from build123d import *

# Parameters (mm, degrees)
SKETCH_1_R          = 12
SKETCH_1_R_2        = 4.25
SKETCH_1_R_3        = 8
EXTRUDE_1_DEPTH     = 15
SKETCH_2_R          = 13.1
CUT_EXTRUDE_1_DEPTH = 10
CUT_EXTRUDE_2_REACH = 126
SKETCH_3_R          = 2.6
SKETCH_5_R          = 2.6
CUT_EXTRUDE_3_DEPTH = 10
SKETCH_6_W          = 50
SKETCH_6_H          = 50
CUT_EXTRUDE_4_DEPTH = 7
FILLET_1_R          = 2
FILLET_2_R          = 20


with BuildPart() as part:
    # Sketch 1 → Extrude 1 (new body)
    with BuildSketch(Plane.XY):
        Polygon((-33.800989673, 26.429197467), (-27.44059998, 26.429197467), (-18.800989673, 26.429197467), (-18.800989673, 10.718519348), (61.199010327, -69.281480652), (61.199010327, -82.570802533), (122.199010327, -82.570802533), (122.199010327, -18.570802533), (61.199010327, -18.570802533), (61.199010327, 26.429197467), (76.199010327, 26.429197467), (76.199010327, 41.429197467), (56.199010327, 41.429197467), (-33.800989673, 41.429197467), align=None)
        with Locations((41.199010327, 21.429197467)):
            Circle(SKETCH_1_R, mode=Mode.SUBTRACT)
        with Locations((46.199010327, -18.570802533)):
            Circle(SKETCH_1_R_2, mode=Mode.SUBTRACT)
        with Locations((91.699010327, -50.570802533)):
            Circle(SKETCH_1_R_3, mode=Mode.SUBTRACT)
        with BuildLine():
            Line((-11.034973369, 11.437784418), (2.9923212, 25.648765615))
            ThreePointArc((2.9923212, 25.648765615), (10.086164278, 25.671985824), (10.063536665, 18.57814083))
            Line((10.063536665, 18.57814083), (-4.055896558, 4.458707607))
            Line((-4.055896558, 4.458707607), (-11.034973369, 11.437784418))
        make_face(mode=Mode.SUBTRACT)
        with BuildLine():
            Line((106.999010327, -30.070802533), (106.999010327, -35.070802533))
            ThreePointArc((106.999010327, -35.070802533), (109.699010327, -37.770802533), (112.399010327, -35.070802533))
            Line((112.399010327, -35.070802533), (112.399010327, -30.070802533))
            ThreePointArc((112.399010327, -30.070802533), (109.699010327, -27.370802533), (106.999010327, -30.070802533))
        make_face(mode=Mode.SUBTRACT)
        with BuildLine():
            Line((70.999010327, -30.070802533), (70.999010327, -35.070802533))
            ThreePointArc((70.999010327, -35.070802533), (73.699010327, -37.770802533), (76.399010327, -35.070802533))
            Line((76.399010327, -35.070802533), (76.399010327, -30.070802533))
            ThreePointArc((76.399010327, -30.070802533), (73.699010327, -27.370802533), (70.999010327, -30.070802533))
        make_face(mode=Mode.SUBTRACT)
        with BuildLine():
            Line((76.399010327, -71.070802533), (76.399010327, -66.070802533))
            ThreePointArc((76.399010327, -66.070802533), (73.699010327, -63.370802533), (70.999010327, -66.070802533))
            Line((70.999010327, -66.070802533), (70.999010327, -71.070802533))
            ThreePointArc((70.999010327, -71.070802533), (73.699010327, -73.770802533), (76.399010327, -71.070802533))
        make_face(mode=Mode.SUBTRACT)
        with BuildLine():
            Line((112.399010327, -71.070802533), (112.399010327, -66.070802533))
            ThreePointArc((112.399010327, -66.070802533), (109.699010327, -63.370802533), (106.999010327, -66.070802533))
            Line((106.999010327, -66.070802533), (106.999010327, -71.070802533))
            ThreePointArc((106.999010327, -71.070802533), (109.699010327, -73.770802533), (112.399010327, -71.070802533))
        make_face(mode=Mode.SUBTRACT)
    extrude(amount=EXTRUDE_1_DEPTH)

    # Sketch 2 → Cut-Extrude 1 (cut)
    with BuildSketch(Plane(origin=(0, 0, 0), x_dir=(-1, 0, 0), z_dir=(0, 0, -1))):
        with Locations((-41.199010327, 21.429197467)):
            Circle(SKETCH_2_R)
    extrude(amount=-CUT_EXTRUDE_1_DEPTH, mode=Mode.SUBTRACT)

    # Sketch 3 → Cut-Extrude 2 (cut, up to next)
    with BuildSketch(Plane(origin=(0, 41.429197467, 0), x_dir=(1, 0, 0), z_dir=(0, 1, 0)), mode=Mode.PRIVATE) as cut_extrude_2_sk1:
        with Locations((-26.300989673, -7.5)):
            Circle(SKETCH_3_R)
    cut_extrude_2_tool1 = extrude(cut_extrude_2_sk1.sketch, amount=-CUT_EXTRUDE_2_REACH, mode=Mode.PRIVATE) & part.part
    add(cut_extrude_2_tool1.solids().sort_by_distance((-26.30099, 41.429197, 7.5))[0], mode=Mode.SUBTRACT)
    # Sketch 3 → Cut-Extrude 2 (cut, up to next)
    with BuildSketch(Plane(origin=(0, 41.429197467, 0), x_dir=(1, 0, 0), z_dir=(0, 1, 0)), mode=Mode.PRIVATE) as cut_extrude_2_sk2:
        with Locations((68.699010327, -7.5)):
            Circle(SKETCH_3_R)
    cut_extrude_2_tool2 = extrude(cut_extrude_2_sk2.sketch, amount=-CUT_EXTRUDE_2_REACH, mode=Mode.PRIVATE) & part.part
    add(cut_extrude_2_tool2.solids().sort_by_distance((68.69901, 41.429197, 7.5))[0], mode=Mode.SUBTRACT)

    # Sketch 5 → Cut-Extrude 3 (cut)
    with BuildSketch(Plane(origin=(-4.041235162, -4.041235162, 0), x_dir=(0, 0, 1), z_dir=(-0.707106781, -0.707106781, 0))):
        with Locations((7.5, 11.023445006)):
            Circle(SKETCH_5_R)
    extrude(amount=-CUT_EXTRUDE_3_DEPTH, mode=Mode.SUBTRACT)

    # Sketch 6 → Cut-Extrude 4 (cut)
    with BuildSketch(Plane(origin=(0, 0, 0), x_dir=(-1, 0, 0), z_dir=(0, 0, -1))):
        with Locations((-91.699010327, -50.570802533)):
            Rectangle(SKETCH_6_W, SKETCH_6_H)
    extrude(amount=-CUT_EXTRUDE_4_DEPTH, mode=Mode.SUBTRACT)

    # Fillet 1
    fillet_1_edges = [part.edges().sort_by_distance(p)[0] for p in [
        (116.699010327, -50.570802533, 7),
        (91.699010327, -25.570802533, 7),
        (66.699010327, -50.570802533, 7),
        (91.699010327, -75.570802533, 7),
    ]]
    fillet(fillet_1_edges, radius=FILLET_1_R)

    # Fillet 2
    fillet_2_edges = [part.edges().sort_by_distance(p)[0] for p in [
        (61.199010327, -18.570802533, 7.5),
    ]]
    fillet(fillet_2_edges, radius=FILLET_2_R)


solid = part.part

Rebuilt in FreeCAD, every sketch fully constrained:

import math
import FreeCAD as App
import Part
import Sketcher
Q = App.Units.Quantity


def edges_at(feature, points):
    """Names of the edges that pass closest to the given points."""
    edges = feature.Shape.Edges
    near = lambda p: min(range(len(edges)), key=lambda i: edges[i].distToShape(Part.Vertex(*p))[0])
    return sorted({f"Edge{near(p) + 1}" for p in points})

doc = App.newDocument("Part")
body = doc.addObject("PartDesign::Body", "Body")

# Sketch on XY plane
sketch1 = body.newObject("Sketcher::SketchObject", "Sketch")
sketch1.AttachmentSupport = (doc.getObject("XY_Plane"), [""])
sketch1.MapMode = "FlatFace"
sketch1.addGeometry([
    Part.LineSegment(App.Vector(-33.80099, 26.429197, 0), App.Vector(-18.80099, 26.429197, 0)),  # 0
    Part.LineSegment(App.Vector(-18.80099, 26.429197, 0), App.Vector(-18.80099, 10.718519, 0)),  # 1
    Part.LineSegment(App.Vector(-18.80099, 10.718519, 0), App.Vector(61.19901, -69.281481, 0)),  # 2
    Part.LineSegment(App.Vector(61.19901, -69.281481, 0), App.Vector(61.19901, -82.570803, 0)),  # 3
    Part.LineSegment(App.Vector(61.19901, -82.570803, 0), App.Vector(122.19901, -82.570803, 0)),  # 4
    Part.LineSegment(App.Vector(122.19901, -82.570803, 0), App.Vector(122.19901, -18.570803, 0)),  # 5
    Part.LineSegment(App.Vector(122.19901, -18.570803, 0), App.Vector(61.19901, -18.570803, 0)),  # 6
    Part.LineSegment(App.Vector(61.19901, -18.570803, 0), App.Vector(61.19901, 26.429197, 0)),  # 7
    Part.LineSegment(App.Vector(61.19901, 26.429197, 0), App.Vector(76.19901, 26.429197, 0)),  # 8
    Part.LineSegment(App.Vector(76.19901, 26.429197, 0), App.Vector(76.19901, 41.429197, 0)),  # 9
    Part.LineSegment(App.Vector(76.19901, 41.429197, 0), App.Vector(-33.80099, 41.429197, 0)),  # 10
    Part.LineSegment(App.Vector(-33.80099, 41.429197, 0), App.Vector(-33.80099, 26.429197, 0)),  # 11
    Part.LineSegment(App.Vector(76.39901, -66.070803, 0), App.Vector(76.39901, -71.070803, 0)),  # 12
    Part.ArcOfCircle(Part.Circle(App.Vector(73.69901, -71.070803, 0), App.Vector(0, 0, 1), 2.7), math.radians(180), math.radians(360)),  # 13
    Part.LineSegment(App.Vector(70.99901, -71.070803, 0), App.Vector(70.99901, -66.070803, 0)),  # 14
    Part.ArcOfCircle(Part.Circle(App.Vector(73.69901, -66.070803, 0), App.Vector(0, 0, 1), 2.7), math.radians(0), math.radians(180)),  # 15
    Part.LineSegment(App.Vector(112.39901, -66.070803, 0), App.Vector(112.39901, -71.070803, 0)),  # 16
    Part.ArcOfCircle(Part.Circle(App.Vector(109.69901, -71.070803, 0), App.Vector(0, 0, 1), 2.7), math.radians(180), math.radians(360)),  # 17
    Part.LineSegment(App.Vector(106.99901, -71.070803, 0), App.Vector(106.99901, -66.070803, 0)),  # 18
    Part.ArcOfCircle(Part.Circle(App.Vector(109.69901, -66.070803, 0), App.Vector(0, 0, 1), 2.7), math.radians(0), math.radians(180)),  # 19
    Part.Circle(App.Vector(91.69901, -50.570803, 0), App.Vector(0, 0, 1), 8),  # 20
    Part.LineSegment(App.Vector(70.99901, -35.070803, 0), App.Vector(70.99901, -30.070803, 0)),  # 21
    Part.ArcOfCircle(Part.Circle(App.Vector(73.69901, -30.070803, 0), App.Vector(0, 0, 1), 2.7), math.radians(0), math.radians(180)),  # 22
    Part.LineSegment(App.Vector(76.39901, -30.070803, 0), App.Vector(76.39901, -35.070803, 0)),  # 23
    Part.ArcOfCircle(Part.Circle(App.Vector(73.69901, -35.070803, 0), App.Vector(0, 0, 1), 2.7), math.radians(180), math.radians(360)),  # 24
    Part.LineSegment(App.Vector(106.99901, -35.070803, 0), App.Vector(106.99901, -30.070803, 0)),  # 25
    Part.ArcOfCircle(Part.Circle(App.Vector(109.69901, -30.070803, 0), App.Vector(0, 0, 1), 2.7), math.radians(0), math.radians(180)),  # 26
    Part.LineSegment(App.Vector(112.39901, -30.070803, 0), App.Vector(112.39901, -35.070803, 0)),  # 27
    Part.ArcOfCircle(Part.Circle(App.Vector(109.69901, -35.070803, 0), App.Vector(0, 0, 1), 2.7), math.radians(180), math.radians(360)),  # 28
    Part.Circle(App.Vector(46.19901, -18.570803, 0), App.Vector(0, 0, 1), 4.25),  # 29
    Part.LineSegment(App.Vector(-4.055897, 4.458708, 0), App.Vector(-11.034973, 11.437784, 0)),  # 30
    Part.LineSegment(App.Vector(-11.034973, 11.437784, 0), App.Vector(2.992321, 25.648766, 0)),  # 31
    Part.ArcOfCircle(Part.Circle(App.Vector(6.550778, 22.136304, 0), App.Vector(0, 0, 1), 5), math.radians(-45.367911), math.radians(135.372697)),  # 32
    Part.LineSegment(App.Vector(10.063537, 18.578141, 0), App.Vector(-4.055897, 4.458708, 0)),  # 33
    Part.Circle(App.Vector(41.19901, 21.429197, 0), App.Vector(0, 0, 1), 12),  # 34
], False)
sketch1.addConstraint([
    Sketcher.Constraint("Coincident", 0, 2, 1, 1),
    Sketcher.Constraint("Coincident", 1, 2, 2, 1),
    Sketcher.Constraint("Coincident", 2, 2, 3, 1),
    Sketcher.Constraint("Coincident", 3, 2, 4, 1),
    Sketcher.Constraint("Coincident", 4, 2, 5, 1),
    Sketcher.Constraint("Coincident", 5, 2, 6, 1),
    Sketcher.Constraint("Coincident", 6, 2, 7, 1),
    Sketcher.Constraint("Coincident", 7, 2, 8, 1),
    Sketcher.Constraint("Coincident", 8, 2, 9, 1),
    Sketcher.Constraint("Coincident", 9, 2, 10, 1),
    Sketcher.Constraint("Coincident", 10, 2, 11, 1),
    Sketcher.Constraint("Coincident", 11, 2, 0, 1),
    Sketcher.Constraint("Tangent", 12, 2, 13, 2),
    Sketcher.Constraint("Tangent", 13, 1, 14, 1),
    Sketcher.Constraint("Tangent", 14, 2, 15, 2),
    Sketcher.Constraint("Tangent", 15, 1, 12, 1),
    Sketcher.Constraint("Tangent", 16, 2, 17, 2),
    Sketcher.Constraint("Tangent", 17, 1, 18, 1),
    Sketcher.Constraint("Tangent", 18, 2, 19, 2),
    Sketcher.Constraint("Tangent", 19, 1, 16, 1),
    Sketcher.Constraint("Tangent", 21, 2, 22, 2),
    Sketcher.Constraint("Tangent", 22, 1, 23, 1),
    Sketcher.Constraint("Tangent", 23, 2, 24, 2),
    Sketcher.Constraint("Tangent", 24, 1, 21, 1),
    Sketcher.Constraint("Tangent", 25, 2, 26, 2),
    Sketcher.Constraint("Tangent", 26, 1, 27, 1),
    Sketcher.Constraint("Tangent", 27, 2, 28, 2),
    Sketcher.Constraint("Tangent", 28, 1, 25, 1),
    Sketcher.Constraint("Coincident", 30, 2, 31, 1),
    Sketcher.Constraint("Tangent", 31, 2, 32, 2),
    Sketcher.Constraint("Coincident", 32, 1, 33, 1),
    Sketcher.Constraint("Coincident", 33, 2, 30, 1),
    Sketcher.Constraint("Horizontal", 0),
    Sketcher.Constraint("Vertical", 1),
    Sketcher.Constraint("Vertical", 3),
    Sketcher.Constraint("Horizontal", 4),
    Sketcher.Constraint("Vertical", 5),
    Sketcher.Constraint("Horizontal", 6),
    Sketcher.Constraint("Vertical", 7),
    Sketcher.Constraint("Horizontal", 8),
    Sketcher.Constraint("Vertical", 9),
    Sketcher.Constraint("Horizontal", 10),
    Sketcher.Constraint("Vertical", 11),
    Sketcher.Constraint("Vertical", 12),
    Sketcher.Constraint("Vertical", 14),
    Sketcher.Constraint("Vertical", 16),
    Sketcher.Constraint("Vertical", 18),
    Sketcher.Constraint("Vertical", 21),
    Sketcher.Constraint("Vertical", 23),
    Sketcher.Constraint("Vertical", 25),
    Sketcher.Constraint("Vertical", 27),
    Sketcher.Constraint("Equal", 15, 17),
    Sketcher.Constraint("Equal", 19, 22),
    Sketcher.Constraint("Equal", 24, 26),
    Sketcher.Constraint("Parallel", 2, 30),
    Sketcher.Constraint("Perpendicular", 30, 33),
    Sketcher.Constraint("Horizontal", 13, 3, 17, 3),
    Sketcher.Constraint("Horizontal", 15, 3, 19, 3),
    Sketcher.Constraint("Horizontal", 22, 3, 26, 3),
    Sketcher.Constraint("Horizontal", 24, 3, 28, 3),
    Sketcher.Constraint("Horizontal", 29, 3, 5, 2),
    Sketcher.Constraint("Horizontal", 0, 2, 7, 2),
    Sketcher.Constraint("Vertical", 15, 3, 22, 3),
    Sketcher.Constraint("Vertical", 19, 3, 26, 3),
    Sketcher.Constraint("Vertical", 3, 2, 6, 2),
    Sketcher.Constraint("Equal", 0, 8),
    Sketcher.Constraint("Equal", 8, 9),
    Sketcher.Constraint("Equal", 18, 21),
    Sketcher.Constraint("Diameter", 20, 16.0),
    Sketcher.Constraint("Diameter", 34, 24.0),
    Sketcher.Constraint("Radius", 32, 5.0),
    Sketcher.Constraint("Diameter", 29, 8.5),
    Sketcher.Constraint("Radius", 13, 2.7),
    Sketcher.Constraint("DistanceX", 0, 1, 0, 2, 15.0),
    Sketcher.Constraint("DistanceX", 4, 1, 4, 2, 61.0),
    Sketcher.Constraint("DistanceX", 10, 2, 10, 1, 110.0),
    Sketcher.Constraint("DistanceY", 5, 1, 5, 2, 64.0),
    Sketcher.Constraint("DistanceY", 7, 1, 7, 2, 45.0),
    Sketcher.Constraint("DistanceY", 12, 2, 12, 1, 5.0),
    Sketcher.Constraint("Angle", 2, Q("-45 deg")),
    Sketcher.Constraint("DistanceX", 13, 3, 17, 3, 36.0),
    Sketcher.Constraint("DistanceX", 15, 3, 20, 3, 18.0),
    Sketcher.Constraint("DistanceY", 15, 3, 22, 3, 36.0),
    Sketcher.Constraint("DistanceY", 20, 3, 29, 3, 32.0),
    Sketcher.Constraint("DistanceX", 34, 3, 29, 3, 5.0),
    Sketcher.Constraint("DistanceY", 29, 3, 34, 3, 40.0),
    Sketcher.Constraint("DistanceX", 0, 2, 34, 3, 60.0),
    Sketcher.Constraint("DistanceY", 15, 3, 20, 3, 15.5),
    Sketcher.Constraint("DistanceX", 29, 3, 22, 3, 27.5),
    Sketcher.Constraint("Distance", 31, 19.967899),
    Sketcher.Constraint("DistanceY", 1, 2, 1, 1, 15.710678),
    Sketcher.Constraint("DistanceX", -1, 1, 13, 3, 73.69901),
    Sketcher.Constraint("DistanceX", -1, 1, 32, 3, 6.550778),
    Sketcher.Constraint("DistanceY", -1, 1, 1, 2, 10.718519),
    Sketcher.Constraint("DistanceX", -1, 1, 31, 2, 2.992321),
    Sketcher.Constraint("DistanceY", -1, 1, 32, 1, 18.578141),
    Sketcher.Constraint("DistanceY", 31, 2, 0, 2, 0.780432),
])
pad1 = body.newObject("PartDesign::Pad", "Pad")
pad1.Profile = sketch1
pad1.Length = 15

# Sketch on XY plane
sketch2 = body.newObject("Sketcher::SketchObject", "Sketch001")
sketch2.AttachmentSupport = (doc.getObject("XY_Plane"), [""])
sketch2.MapMode = "FlatFace"
sketch2.addGeometry(Part.Circle(App.Vector(41.19901, 21.429197, 0), App.Vector(0, 0, 1), 13.1), False)
sketch2.addConstraint([
    Sketcher.Constraint("Diameter", 0, 26.2),
    Sketcher.Constraint("DistanceX", -1, 1, 0, 3, 41.19901),
    Sketcher.Constraint("DistanceY", -1, 1, 0, 3, 21.429197),
])
pocket1 = body.newObject("PartDesign::Pocket", "Pocket")
pocket1.Profile = sketch2
pocket1.Length = 10
pocket1.Reversed = True

# Sketch on XZ plane
sketch3 = body.newObject("Sketcher::SketchObject", "Sketch002")
sketch3.AttachmentSupport = (doc.getObject("XZ_Plane"), [""])
sketch3.MapMode = "FlatFace"
sketch3.AttachmentOffset = App.Placement(App.Vector(0, 0, -41.429197), App.Rotation())
sketch3.addGeometry(Part.Circle(App.Vector(-26.30099, 7.5, 0), App.Vector(0, 0, 1), 2.6), False)
sketch3.addConstraint([
    Sketcher.Constraint("Diameter", 0, 5.2),
    Sketcher.Constraint("DistanceY", -1, 1, 0, 3, 7.5),
    Sketcher.Constraint("DistanceX", 0, 3, -1, 1, 26.30099),
])
pocket2 = body.newObject("PartDesign::Pocket", "Pocket001")
pocket2.Profile = sketch3
pocket2.Type = "UpToFirst"
pocket2.Reversed = True

# Sketch on XZ plane
sketch4 = body.newObject("Sketcher::SketchObject", "Sketch003")
sketch4.AttachmentSupport = (doc.getObject("XZ_Plane"), [""])
sketch4.MapMode = "FlatFace"
sketch4.AttachmentOffset = App.Placement(App.Vector(0, 0, -41.429197), App.Rotation())
sketch4.addGeometry(Part.Circle(App.Vector(68.69901, 7.5, 0), App.Vector(0, 0, 1), 2.6), False)
sketch4.addConstraint([
    Sketcher.Constraint("Diameter", 0, 5.2),
    Sketcher.Constraint("DistanceY", -1, 1, 0, 3, 7.5),
    Sketcher.Constraint("DistanceX", -1, 1, 0, 3, 68.69901),
])
pocket3 = body.newObject("PartDesign::Pocket", "Pocket002")
pocket3.Profile = sketch4
pocket3.Type = "UpToFirst"
pocket3.Reversed = True

# Sketch on an angled plane
sketch5 = body.newObject("Sketcher::SketchObject", "Sketch004")
sketch5.Placement = App.Placement(App.Vector(-4.041235, -4.041235, 0), App.Rotation(App.Vector(0, 0, 1), App.Vector(-0.707106781, 0.707106781, 0), App.Vector(-0.707106781, -0.707106781, 0), "ZXY"))
sketch5.addGeometry(Part.Circle(App.Vector(7.5, 11.023445, 0), App.Vector(0, 0, 1), 2.6), False)
sketch5.addConstraint([
    Sketcher.Constraint("Diameter", 0, 5.2),
    Sketcher.Constraint("DistanceX", -1, 1, 0, 3, 7.5),
    Sketcher.Constraint("DistanceY", -1, 1, 0, 3, 11.023445),
])
pocket4 = body.newObject("PartDesign::Pocket", "Pocket003")
pocket4.Profile = sketch5
pocket4.Length = 10

# Sketch on XY plane
sketch6 = body.newObject("Sketcher::SketchObject", "Sketch005")
sketch6.AttachmentSupport = (doc.getObject("XY_Plane"), [""])
sketch6.MapMode = "FlatFace"
sketch6.addGeometry([
    Part.LineSegment(App.Vector(116.69901, -25.570803, 0), App.Vector(116.69901, -75.570803, 0)),
    Part.LineSegment(App.Vector(116.69901, -75.570803, 0), App.Vector(66.69901, -75.570803, 0)),
    Part.LineSegment(App.Vector(66.69901, -75.570803, 0), App.Vector(66.69901, -25.570803, 0)),
    Part.LineSegment(App.Vector(66.69901, -25.570803, 0), App.Vector(116.69901, -25.570803, 0)),
], False)
sketch6.addConstraint([
    Sketcher.Constraint("Coincident", 0, 2, 1, 1),
    Sketcher.Constraint("Coincident", 1, 2, 2, 1),
    Sketcher.Constraint("Coincident", 2, 2, 3, 1),
    Sketcher.Constraint("Coincident", 3, 2, 0, 1),
    Sketcher.Constraint("Vertical", 0),
    Sketcher.Constraint("Horizontal", 1),
    Sketcher.Constraint("Vertical", 2),
    Sketcher.Constraint("Horizontal", 3),
    Sketcher.Constraint("Equal", 3, 0),
    Sketcher.Constraint("DistanceX", 1, 2, 1, 1, 50.0),
    Sketcher.Constraint("DistanceX", -1, 1, 0, 2, 116.69901),
    Sketcher.Constraint("DistanceY", 0, 2, -1, 1, 75.570803),
])
pocket5 = body.newObject("PartDesign::Pocket", "Pocket004")
pocket5.Profile = sketch6
pocket5.Length = 7
pocket5.Reversed = True
doc.recompute()

fillet = body.newObject("PartDesign::Fillet", "Fillet")
fillet.Base = (pocket5, edges_at(pocket5, [
    (116.699, -50.571, 7),
    (91.699, -25.571, 7),
    (66.699, -50.571, 7),
    (91.699, -75.571, 7),
]))
fillet.Radius = 2
doc.recompute()

fillet2 = body.newObject("PartDesign::Fillet", "Fillet001")
fillet2.Base = (fillet, edges_at(fillet, [(61.199, -18.571, 7.5)]))
fillet2.Radius = 20

doc.recompute()
